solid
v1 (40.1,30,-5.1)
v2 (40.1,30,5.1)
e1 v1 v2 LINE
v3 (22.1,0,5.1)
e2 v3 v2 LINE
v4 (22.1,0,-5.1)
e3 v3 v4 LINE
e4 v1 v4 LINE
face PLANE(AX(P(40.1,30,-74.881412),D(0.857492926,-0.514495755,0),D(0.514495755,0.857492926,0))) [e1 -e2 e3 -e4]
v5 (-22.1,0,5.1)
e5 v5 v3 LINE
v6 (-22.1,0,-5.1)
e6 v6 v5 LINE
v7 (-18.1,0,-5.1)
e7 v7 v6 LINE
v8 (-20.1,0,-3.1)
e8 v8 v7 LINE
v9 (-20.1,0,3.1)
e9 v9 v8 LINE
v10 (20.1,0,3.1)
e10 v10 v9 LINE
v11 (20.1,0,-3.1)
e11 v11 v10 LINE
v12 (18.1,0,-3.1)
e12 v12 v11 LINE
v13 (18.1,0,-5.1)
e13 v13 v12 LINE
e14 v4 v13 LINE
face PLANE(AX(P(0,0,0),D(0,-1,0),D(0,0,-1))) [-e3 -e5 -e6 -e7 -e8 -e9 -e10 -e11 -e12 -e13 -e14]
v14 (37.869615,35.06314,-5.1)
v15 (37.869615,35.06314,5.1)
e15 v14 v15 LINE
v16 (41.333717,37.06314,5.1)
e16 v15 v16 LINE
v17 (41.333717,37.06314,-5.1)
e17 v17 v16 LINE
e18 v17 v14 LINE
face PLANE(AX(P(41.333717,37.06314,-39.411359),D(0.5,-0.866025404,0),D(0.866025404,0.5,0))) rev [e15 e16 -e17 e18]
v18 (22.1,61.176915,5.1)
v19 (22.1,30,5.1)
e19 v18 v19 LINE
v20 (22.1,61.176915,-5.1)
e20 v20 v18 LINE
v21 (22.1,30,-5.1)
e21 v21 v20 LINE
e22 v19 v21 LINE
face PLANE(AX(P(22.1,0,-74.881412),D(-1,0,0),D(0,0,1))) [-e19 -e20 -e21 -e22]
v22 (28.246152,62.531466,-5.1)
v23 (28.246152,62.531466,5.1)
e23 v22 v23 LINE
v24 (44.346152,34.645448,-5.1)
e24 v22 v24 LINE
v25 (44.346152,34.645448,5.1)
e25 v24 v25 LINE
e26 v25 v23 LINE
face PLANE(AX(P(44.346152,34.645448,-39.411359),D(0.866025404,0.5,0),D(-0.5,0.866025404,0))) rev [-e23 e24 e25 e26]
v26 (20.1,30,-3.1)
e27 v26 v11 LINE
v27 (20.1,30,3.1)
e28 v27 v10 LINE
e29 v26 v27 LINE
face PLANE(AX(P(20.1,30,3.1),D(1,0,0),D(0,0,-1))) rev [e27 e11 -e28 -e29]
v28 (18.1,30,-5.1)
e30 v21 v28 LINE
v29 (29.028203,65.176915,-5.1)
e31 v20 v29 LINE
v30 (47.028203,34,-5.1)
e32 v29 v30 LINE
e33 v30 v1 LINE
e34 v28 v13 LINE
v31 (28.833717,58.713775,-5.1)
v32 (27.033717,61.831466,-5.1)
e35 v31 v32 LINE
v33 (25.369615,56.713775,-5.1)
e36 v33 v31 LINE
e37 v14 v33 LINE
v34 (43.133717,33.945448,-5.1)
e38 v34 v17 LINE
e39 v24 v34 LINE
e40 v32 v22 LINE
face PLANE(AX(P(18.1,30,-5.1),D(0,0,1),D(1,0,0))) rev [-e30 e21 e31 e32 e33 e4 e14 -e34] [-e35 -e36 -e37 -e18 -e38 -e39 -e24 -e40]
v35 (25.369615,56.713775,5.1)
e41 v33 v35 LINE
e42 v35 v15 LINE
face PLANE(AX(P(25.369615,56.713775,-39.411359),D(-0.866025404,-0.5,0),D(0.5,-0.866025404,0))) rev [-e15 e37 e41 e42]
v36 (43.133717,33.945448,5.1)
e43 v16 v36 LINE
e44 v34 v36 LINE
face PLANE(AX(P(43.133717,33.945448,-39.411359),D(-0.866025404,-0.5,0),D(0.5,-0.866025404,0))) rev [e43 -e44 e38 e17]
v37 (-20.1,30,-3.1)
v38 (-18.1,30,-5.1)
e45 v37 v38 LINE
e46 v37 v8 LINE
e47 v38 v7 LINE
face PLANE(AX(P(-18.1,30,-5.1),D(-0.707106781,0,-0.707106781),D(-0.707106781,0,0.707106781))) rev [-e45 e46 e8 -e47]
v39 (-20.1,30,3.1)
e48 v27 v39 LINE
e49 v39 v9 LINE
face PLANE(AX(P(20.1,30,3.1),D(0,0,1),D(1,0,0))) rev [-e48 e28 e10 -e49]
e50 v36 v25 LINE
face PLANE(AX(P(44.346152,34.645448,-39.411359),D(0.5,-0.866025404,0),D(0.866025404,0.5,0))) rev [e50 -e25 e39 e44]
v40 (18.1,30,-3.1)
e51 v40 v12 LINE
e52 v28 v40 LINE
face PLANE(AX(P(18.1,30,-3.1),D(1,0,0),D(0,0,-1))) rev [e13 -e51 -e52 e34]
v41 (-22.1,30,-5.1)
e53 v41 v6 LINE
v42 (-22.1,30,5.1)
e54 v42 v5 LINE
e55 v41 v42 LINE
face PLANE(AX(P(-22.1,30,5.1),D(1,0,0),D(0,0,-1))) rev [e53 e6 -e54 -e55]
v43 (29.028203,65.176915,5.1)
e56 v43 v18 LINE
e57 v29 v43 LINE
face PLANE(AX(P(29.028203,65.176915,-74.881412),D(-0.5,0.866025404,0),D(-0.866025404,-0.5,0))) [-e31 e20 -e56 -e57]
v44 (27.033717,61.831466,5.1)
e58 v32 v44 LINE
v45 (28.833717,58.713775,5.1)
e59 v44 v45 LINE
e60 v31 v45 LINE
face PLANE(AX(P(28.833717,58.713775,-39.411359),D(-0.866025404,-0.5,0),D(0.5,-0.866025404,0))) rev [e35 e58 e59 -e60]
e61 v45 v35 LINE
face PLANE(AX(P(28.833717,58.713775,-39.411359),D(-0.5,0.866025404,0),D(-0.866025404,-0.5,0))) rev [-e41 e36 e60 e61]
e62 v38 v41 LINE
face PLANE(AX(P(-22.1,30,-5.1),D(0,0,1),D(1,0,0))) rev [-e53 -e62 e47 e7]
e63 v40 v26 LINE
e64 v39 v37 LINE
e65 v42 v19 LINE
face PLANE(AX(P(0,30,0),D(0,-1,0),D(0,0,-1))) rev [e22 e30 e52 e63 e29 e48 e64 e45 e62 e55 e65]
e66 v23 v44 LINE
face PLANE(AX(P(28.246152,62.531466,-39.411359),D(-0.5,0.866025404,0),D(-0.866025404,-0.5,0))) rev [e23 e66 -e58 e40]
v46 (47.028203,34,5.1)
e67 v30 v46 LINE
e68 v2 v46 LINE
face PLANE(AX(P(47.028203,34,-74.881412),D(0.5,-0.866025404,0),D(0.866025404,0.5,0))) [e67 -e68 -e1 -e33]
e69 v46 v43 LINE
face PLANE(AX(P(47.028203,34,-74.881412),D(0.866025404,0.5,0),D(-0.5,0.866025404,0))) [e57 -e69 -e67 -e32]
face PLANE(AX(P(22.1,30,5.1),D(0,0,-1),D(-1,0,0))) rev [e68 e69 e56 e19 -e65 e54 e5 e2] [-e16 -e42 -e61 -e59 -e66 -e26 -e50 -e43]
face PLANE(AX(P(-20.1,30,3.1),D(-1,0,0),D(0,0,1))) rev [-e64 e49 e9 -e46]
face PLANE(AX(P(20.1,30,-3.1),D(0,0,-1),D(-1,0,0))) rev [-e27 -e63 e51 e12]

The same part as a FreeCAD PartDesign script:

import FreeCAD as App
import Part
import Sketcher
Q = App.Units.Quantity

doc = App.newDocument("Part")
body = doc.addObject("PartDesign::Body", "Body")

# Sketch on XZ plane
sketch1 = doc.addObject("Sketcher::SketchObject", "Sketch")
body.addObject(sketch1)
sketch1.AttachmentSupport = (doc.XZ_Plane, [""])
sketch1.MapMode = "FlatFace"
sketch1.addGeometry(Part.LineSegment(App.Vector(18.1, -5.1, 0), App.Vector(18.1, -3.1, 0)), False)
sketch1.addGeometry(Part.LineSegment(App.Vector(18.1, -3.1, 0), App.Vector(20.1, -3.1, 0)), False)
sketch1.addGeometry(Part.LineSegment(App.Vector(20.1, -3.1, 0), App.Vector(20.1, 3.1, 0)), False)
sketch1.addGeometry(Part.LineSegment(App.Vector(20.1, 3.1, 0), App.Vector(-20.1, 3.1, 0)), False)
sketch1.addGeometry(Part.LineSegment(App.Vector(-20.1, 3.1, 0), App.Vector(-20.1, -3.1, 0)), False)
sketch1.addGeometry(Part.LineSegment(App.Vector(-20.1, -3.1, 0), App.Vector(-18.1, -5.1, 0)), False)
sketch1.addGeometry(Part.LineSegment(App.Vector(-18.1, -5.1, 0), App.Vector(-22.1, -5.1, 0)), False)
sketch1.addGeometry(Part.LineSegment(App.Vector(-22.1, -5.1, 0), App.Vector(-22.1, 5.1, 0)), False)
sketch1.addGeometry(Part.LineSegment(App.Vector(-22.1, 5.1, 0), App.Vector(22.1, 5.1, 0)), False)
sketch1.addGeometry(Part.LineSegment(App.Vector(22.1, 5.1, 0), App.Vector(22.1, -5.1, 0)), False)
sketch1.addGeometry(Part.LineSegment(App.Vector(22.1, -5.1, 0), App.Vector(18.1, -5.1, 0)), False)
sketch1.addConstraint(Sketcher.Constraint("Coincident", 0, 2, 1, 1))
sketch1.addConstraint(Sketcher.Constraint("Coincident", 1, 2, 2, 1))
sketch1.addConstraint(Sketcher.Constraint("Coincident", 2, 2, 3, 1))
sketch1.addConstraint(Sketcher.Constraint("Coincident", 3, 2, 4, 1))
sketch1.addConstraint(Sketcher.Constraint("Coincident", 4, 2, 5, 1))
sketch1.addConstraint(Sketcher.Constraint("Coincident", 5, 2, 6, 1))
sketch1.addConstraint(Sketcher.Constraint("Coincident", 6, 2, 7, 1))
sketch1.addConstraint(Sketcher.Constraint("Coincident", 7, 2, 8, 1))
sketch1.addConstraint(Sketcher.Constraint("Coincident", 8, 2, 9, 1))
sketch1.addConstraint(Sketcher.Constraint("Coincident", 9, 2, 10, 1))
sketch1.addConstraint(Sketcher.Constraint("Coincident", 10, 2, 0, 1))
sketch1.addConstraint(Sketcher.Constraint("Vertical", 0))
sketch1.addConstraint(Sketcher.Constraint("Horizontal", 1))
sketch1.addConstraint(Sketcher.Constraint("Vertical", 2))
sketch1.addConstraint(Sketcher.Constraint("Horizontal", 3))
sketch1.addConstraint(Sketcher.Constraint("Vertical", 4))
sketch1.addConstraint(Sketcher.Constraint("Horizontal", 6))
sketch1.addConstraint(Sketcher.Constraint("Vertical", 7))
sketch1.addConstraint(Sketcher.Constraint("Horizontal", 8))
sketch1.addConstraint(Sketcher.Constraint("Vertical", 9))
sketch1.addConstraint(Sketcher.Constraint("Horizontal", 10))
sketch1.addConstraint(Sketcher.Constraint("Symmetric", 1, 2, 3, 2, -1, 1))
sketch1.addConstraint(Sketcher.Constraint("Symmetric", 6, 2, 8, 2, -1, 1))
sketch1.addConstraint(Sketcher.Constraint("Symmetric", 5, 2, 10, 2, -2))
sketch1.addConstraint(Sketcher.Constraint("Horizontal", 1, 2, 4, 2))
sketch1.addConstraint(Sketcher.Constraint("Equal", 1, 0))
sketch1.addConstraint(Sketcher.Constraint("DistanceX", 1, 1, 1, 2, Q("2 mm")))
sketch1.addConstraint(Sketcher.Constraint("DistanceX", 6, 2, 6, 1, Q("4 mm")))
sketch1.addConstraint(Sketcher.Constraint("DistanceX", 3, 2, 3, 1, Q("40.2 mm")))
sketch1.addConstraint(Sketcher.Constraint("DistanceY", 2, 1, 2, 2, Q("6.2 mm")))
pad1 = doc.addObject("PartDesign::Pad", "Pad")
body.addObject(pad1)
pad1.Profile = sketch1
pad1.Length = 30
pad1.Reversed = True

# Sketch on XY plane
sketch2 = doc.addObject("Sketcher::SketchObject", "Sketch001")
body.addObject(sketch2)
sketch2.AttachmentSupport = (doc.XY_Plane, [""])
sketch2.MapMode = "FlatFace"
sketch2.AttachmentOffset = App.Placement(App.Vector(0, 0, 5.1), App.Rotation())
sketch2.addGeometry(Part.LineSegment(App.Vector(47, 34, 0), App.Vector(29, 65, 0)), False)
sketch2.addGeometry(Part.LineSegment(App.Vector(29, 65, 0), App.Vector(22, 61, 0)), False)
sketch2.addGeometry(Part.LineSegment(App.Vector(22, 61, 0), App.Vector(22, 0, 0)), False)
sketch2.addGeometry(Part.LineSegment(App.Vector(22, 0, 0), App.Vector(40, 30, 0)), False)
sketch2.addGeometry(Part.LineSegment(App.Vector(40, 30, 0), App.Vector(47, 34, 0)), False)
sketch2.addConstraint(Sketcher.Constraint("Coincident", 0, 2, 1, 1))
sketch2.addConstraint(Sketcher.Constraint("Coincident", 1, 2, 2, 1))
sketch2.addConstraint(Sketcher.Constraint("Coincident", 2, 2, 3, 1))
sketch2.addConstraint(Sketcher.Constraint("Coincident", 3, 2, 4, 1))
sketch2.addConstraint(Sketcher.Constraint("Coincident", 4, 2, 0, 1))
sketch2.addConstraint(Sketcher.Constraint("Vertical", 2))
sketch2.addConstraint(Sketcher.Constraint("PointOnObject", 2, 2, -1))
sketch2.addConstraint(Sketcher.Constraint("Perpendicular", 0, 1))
sketch2.addConstraint(Sketcher.Constraint("Parallel", 1, 4))
sketch2.addConstraint(Sketcher.Constraint("Equal", 1, 4))
sketch2.addConstraint(Sketcher.Constraint("Angle", 0, Q("120 deg")))
sketch2.addConstraint(Sketcher.Constraint("Distance", 0, Q("36 mm")))
sketch2.addConstraint(Sketcher.Constraint("Distance", 1, Q("8 mm")))
sketch2.addConstraint(Sketcher.Constraint("DistanceY", -1, 1, 3, 2, Q("30 mm")))
sketch2.addConstraint(Sketcher.Constraint("DistanceX", -1, 1, 1, 2, Q("22.1 mm")))
pad2 = doc.addObject("PartDesign::Pad", "Pad001")
body.addObject(pad2)
pad2.Profile = sketch2
pad2.Length = 10.2
pad2.Reversed = True

# Sketch on XY plane
sketch3 = doc.addObject("Sketcher::SketchObject", "Sketch002")
body.addObject(sketch3)
sketch3.AttachmentSupport = (doc.XY_Plane, [""])
sketch3.MapMode = "FlatFace"
sketch3.AttachmentOffset = App.Placement(App.Vector(0, 0, 5.1), App.Rotation())
sketch3.addGeometry(Part.LineSegment(App.Vector(44.3, 34.6, 0), App.Vector(28.2, 62.5, 0)), False)
sketch3.addGeometry(Part.LineSegment(App.Vector(28.2, 62.5, 0), App.Vector(27, 61.8, 0)), False)
sketch3.addGeometry(Part.LineSegment(App.Vector(27, 61.8, 0), App.Vector(28.8, 58.7, 0)), False)
sketch3.addGeometry(Part.LineSegment(App.Vector(28.8, 58.7, 0), App.Vector(25.4, 56.7, 0)), False)
sketch3.addGeometry(Part.LineSegment(App.Vector(25.4, 56.7, 0), App.Vector(37.9, 35.1, 0)), False)
sketch3.addGeometry(Part.LineSegment(App.Vector(37.9, 35.1, 0), App.Vector(41.3, 37.1, 0)), False)
sketch3.addGeometry(Part.LineSegment(App.Vector(41.3, 37.1, 0), App.Vector(43.1, 33.9, 0)), False)
sketch3.addGeometry(Part.LineSegment(App.Vector(43.1, 33.9, 0), App.Vector(44.3, 34.6, 0)), False)
sketch3.addConstraint(Sketcher.Constraint("Coincident", 0, 2, 1, 1))
sketch3.addConstraint(Sketcher.Constraint("Coincident", 1, 2, 2, 1))
sketch3.addConstraint(Sketcher.Constraint("Coincident", 2, 2, 3, 1))
sketch3.addConstraint(Sketcher.Constraint("Coincident", 3, 2, 4, 1))
sketch3.addConstraint(Sketcher.Constraint("Coincident", 4, 2, 5, 1))
sketch3.addConstraint(Sketcher.Constraint("Coincident", 5, 2, 6, 1))
sketch3.addConstraint(Sketcher.Constraint("Coincident", 6, 2, 7, 1))
sketch3.addConstraint(Sketcher.Constraint("Coincident", 7, 2, 0, 1))
sketch3.addConstraint(Sketcher.Constraint("Perpendicular", 0, 1))
sketch3.addConstraint(Sketcher.Constraint("Perpendicular", 1, 2))
sketch3.addConstraint(Sketcher.Constraint("Perpendicular", 2, 3))
sketch3.addConstraint(Sketcher.Constraint("Perpendicular", 3, 4))
sketch3.addConstraint(Sketcher.Constraint("Perpendicular", 4, 5))
sketch3.addConstraint(Sketcher.Constraint("Perpendicular", 5, 6))
sketch3.addConstraint(Sketcher.Constraint("Perpendicular", 6, 7))
sketch3.addConstraint(Sketcher.Constraint("Equal", 3, 5))
sketch3.addConstraint(Sketcher.Constraint("Equal", 2, 6))
sketch3.addConstraint(Sketcher.Constraint("Angle", 0, Q("120 deg")))
sketch3.addConstraint(Sketcher.Constraint("Distance", 3, Q("4 mm")))
sketch3.addConstraint(Sketcher.Constraint("Distance", 4, Q("25 mm")))
sketch3.addConstraint(Sketcher.Constraint("Distance", 0, Q("32.2 mm")))
sketch3.addConstraint(Sketcher.Constraint("Distance", 1, Q("1.4 mm")))
sketch3.addConstraint(Sketcher.Constraint("DistanceY", -1, 1, 4, 2, Q("35.06314 mm")))
sketch3.addConstraint(Sketcher.Constraint("DistanceX", -1, 1, 0, 2, Q("28.246152 mm")))
pocket1 = doc.addObject("PartDesign::Pocket", "Pocket")
body.addObject(pocket1)
pocket1.Profile = sketch3
pocket1.Length = 10.2

doc.recompute()
